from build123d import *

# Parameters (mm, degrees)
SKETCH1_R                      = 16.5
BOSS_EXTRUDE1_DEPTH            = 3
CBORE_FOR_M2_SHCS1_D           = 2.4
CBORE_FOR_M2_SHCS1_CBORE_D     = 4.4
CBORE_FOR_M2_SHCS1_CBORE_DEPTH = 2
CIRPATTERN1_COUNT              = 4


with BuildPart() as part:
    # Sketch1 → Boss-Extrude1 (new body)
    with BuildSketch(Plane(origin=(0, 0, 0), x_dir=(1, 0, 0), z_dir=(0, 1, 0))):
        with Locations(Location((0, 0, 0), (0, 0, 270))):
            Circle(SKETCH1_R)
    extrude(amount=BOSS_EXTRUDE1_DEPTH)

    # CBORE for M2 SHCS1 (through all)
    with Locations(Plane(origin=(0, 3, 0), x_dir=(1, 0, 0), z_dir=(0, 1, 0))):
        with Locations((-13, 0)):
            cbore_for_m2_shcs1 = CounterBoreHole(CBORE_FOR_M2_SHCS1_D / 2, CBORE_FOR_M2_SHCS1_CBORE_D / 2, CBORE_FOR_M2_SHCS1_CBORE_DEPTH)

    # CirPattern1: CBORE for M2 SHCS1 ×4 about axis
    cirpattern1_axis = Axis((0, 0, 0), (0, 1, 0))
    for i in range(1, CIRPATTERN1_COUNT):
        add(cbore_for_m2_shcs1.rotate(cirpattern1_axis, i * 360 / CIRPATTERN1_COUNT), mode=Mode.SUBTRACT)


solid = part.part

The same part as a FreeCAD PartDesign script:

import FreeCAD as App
import Part
import Sketcher
Q = App.Units.Quantity

doc = App.newDocument("Part")
body = doc.addObject("PartDesign::Body", "Body")

sketch1 = body.newObject("Sketcher::SketchObject", "Sketch")
sketch1.AttachmentSupport = (doc.getObject("XZ_Plane"), [""])
sketch1.MapMode = "FlatFace"
sketch1.addGeometry(Part.Circle(App.Vector(0, 0, 0), App.Vector(0, 0, 1), 16), False)
sketch1.addConstraint(Sketcher.Constraint("Coincident", 0, 3, -1, 1))
sketch1.addConstraint(Sketcher.Constraint("Diameter", 0, Q("33 mm")))
pad1 = body.newObject("PartDesign::Pad", "Pad")
pad1.Profile = sketch1
pad1.Length = 3
pad1.Reversed = True

sketch2 = body.newObject("Sketcher::SketchObject", "Sketch001")
sketch2.AttachmentSupport = (doc.getObject("XZ_Plane"), [""])
sketch2.MapMode = "FlatFace"
sketch2.AttachmentOffset = App.Placement(App.Vector(0, 0, -3), App.Rotation())
sketch2.addGeometry(Part.Circle(App.Vector(-13, 0, 0), App.Vector(0, 0, 1), 1.2), False)
sketch2.addConstraint(Sketcher.Constraint("PointOnObject", 0, 3, -1))
sketch2.addConstraint(Sketcher.Constraint("Diameter", 0, Q("2.4 mm")))
sketch2.addConstraint(Sketcher.Constraint("DistanceX", 0, 3, -1, 1, Q("13 mm")))
doc.recompute()
hole = body.newObject("PartDesign::Hole", "Hole")
hole.Profile = sketch2
hole.ThreadType = "None"
hole.Diameter = 2.4
hole.DepthType = "ThroughAll"
hole.HoleCutType = "Counterbore"
hole.HoleCutDiameter = 4.4
hole.HoleCutDepth = 2
hole.Reversed = True
doc.recompute()

polarpattern = body.newObject("PartDesign::PolarPattern", "PolarPattern")
polarpattern.Originals = [hole]
polarpattern.Axis = (doc.getObject("Y_Axis"), [""])
polarpattern.Angle = 360
polarpattern.Occurrences = 4
body.Tip = polarpattern

doc.recompute()
